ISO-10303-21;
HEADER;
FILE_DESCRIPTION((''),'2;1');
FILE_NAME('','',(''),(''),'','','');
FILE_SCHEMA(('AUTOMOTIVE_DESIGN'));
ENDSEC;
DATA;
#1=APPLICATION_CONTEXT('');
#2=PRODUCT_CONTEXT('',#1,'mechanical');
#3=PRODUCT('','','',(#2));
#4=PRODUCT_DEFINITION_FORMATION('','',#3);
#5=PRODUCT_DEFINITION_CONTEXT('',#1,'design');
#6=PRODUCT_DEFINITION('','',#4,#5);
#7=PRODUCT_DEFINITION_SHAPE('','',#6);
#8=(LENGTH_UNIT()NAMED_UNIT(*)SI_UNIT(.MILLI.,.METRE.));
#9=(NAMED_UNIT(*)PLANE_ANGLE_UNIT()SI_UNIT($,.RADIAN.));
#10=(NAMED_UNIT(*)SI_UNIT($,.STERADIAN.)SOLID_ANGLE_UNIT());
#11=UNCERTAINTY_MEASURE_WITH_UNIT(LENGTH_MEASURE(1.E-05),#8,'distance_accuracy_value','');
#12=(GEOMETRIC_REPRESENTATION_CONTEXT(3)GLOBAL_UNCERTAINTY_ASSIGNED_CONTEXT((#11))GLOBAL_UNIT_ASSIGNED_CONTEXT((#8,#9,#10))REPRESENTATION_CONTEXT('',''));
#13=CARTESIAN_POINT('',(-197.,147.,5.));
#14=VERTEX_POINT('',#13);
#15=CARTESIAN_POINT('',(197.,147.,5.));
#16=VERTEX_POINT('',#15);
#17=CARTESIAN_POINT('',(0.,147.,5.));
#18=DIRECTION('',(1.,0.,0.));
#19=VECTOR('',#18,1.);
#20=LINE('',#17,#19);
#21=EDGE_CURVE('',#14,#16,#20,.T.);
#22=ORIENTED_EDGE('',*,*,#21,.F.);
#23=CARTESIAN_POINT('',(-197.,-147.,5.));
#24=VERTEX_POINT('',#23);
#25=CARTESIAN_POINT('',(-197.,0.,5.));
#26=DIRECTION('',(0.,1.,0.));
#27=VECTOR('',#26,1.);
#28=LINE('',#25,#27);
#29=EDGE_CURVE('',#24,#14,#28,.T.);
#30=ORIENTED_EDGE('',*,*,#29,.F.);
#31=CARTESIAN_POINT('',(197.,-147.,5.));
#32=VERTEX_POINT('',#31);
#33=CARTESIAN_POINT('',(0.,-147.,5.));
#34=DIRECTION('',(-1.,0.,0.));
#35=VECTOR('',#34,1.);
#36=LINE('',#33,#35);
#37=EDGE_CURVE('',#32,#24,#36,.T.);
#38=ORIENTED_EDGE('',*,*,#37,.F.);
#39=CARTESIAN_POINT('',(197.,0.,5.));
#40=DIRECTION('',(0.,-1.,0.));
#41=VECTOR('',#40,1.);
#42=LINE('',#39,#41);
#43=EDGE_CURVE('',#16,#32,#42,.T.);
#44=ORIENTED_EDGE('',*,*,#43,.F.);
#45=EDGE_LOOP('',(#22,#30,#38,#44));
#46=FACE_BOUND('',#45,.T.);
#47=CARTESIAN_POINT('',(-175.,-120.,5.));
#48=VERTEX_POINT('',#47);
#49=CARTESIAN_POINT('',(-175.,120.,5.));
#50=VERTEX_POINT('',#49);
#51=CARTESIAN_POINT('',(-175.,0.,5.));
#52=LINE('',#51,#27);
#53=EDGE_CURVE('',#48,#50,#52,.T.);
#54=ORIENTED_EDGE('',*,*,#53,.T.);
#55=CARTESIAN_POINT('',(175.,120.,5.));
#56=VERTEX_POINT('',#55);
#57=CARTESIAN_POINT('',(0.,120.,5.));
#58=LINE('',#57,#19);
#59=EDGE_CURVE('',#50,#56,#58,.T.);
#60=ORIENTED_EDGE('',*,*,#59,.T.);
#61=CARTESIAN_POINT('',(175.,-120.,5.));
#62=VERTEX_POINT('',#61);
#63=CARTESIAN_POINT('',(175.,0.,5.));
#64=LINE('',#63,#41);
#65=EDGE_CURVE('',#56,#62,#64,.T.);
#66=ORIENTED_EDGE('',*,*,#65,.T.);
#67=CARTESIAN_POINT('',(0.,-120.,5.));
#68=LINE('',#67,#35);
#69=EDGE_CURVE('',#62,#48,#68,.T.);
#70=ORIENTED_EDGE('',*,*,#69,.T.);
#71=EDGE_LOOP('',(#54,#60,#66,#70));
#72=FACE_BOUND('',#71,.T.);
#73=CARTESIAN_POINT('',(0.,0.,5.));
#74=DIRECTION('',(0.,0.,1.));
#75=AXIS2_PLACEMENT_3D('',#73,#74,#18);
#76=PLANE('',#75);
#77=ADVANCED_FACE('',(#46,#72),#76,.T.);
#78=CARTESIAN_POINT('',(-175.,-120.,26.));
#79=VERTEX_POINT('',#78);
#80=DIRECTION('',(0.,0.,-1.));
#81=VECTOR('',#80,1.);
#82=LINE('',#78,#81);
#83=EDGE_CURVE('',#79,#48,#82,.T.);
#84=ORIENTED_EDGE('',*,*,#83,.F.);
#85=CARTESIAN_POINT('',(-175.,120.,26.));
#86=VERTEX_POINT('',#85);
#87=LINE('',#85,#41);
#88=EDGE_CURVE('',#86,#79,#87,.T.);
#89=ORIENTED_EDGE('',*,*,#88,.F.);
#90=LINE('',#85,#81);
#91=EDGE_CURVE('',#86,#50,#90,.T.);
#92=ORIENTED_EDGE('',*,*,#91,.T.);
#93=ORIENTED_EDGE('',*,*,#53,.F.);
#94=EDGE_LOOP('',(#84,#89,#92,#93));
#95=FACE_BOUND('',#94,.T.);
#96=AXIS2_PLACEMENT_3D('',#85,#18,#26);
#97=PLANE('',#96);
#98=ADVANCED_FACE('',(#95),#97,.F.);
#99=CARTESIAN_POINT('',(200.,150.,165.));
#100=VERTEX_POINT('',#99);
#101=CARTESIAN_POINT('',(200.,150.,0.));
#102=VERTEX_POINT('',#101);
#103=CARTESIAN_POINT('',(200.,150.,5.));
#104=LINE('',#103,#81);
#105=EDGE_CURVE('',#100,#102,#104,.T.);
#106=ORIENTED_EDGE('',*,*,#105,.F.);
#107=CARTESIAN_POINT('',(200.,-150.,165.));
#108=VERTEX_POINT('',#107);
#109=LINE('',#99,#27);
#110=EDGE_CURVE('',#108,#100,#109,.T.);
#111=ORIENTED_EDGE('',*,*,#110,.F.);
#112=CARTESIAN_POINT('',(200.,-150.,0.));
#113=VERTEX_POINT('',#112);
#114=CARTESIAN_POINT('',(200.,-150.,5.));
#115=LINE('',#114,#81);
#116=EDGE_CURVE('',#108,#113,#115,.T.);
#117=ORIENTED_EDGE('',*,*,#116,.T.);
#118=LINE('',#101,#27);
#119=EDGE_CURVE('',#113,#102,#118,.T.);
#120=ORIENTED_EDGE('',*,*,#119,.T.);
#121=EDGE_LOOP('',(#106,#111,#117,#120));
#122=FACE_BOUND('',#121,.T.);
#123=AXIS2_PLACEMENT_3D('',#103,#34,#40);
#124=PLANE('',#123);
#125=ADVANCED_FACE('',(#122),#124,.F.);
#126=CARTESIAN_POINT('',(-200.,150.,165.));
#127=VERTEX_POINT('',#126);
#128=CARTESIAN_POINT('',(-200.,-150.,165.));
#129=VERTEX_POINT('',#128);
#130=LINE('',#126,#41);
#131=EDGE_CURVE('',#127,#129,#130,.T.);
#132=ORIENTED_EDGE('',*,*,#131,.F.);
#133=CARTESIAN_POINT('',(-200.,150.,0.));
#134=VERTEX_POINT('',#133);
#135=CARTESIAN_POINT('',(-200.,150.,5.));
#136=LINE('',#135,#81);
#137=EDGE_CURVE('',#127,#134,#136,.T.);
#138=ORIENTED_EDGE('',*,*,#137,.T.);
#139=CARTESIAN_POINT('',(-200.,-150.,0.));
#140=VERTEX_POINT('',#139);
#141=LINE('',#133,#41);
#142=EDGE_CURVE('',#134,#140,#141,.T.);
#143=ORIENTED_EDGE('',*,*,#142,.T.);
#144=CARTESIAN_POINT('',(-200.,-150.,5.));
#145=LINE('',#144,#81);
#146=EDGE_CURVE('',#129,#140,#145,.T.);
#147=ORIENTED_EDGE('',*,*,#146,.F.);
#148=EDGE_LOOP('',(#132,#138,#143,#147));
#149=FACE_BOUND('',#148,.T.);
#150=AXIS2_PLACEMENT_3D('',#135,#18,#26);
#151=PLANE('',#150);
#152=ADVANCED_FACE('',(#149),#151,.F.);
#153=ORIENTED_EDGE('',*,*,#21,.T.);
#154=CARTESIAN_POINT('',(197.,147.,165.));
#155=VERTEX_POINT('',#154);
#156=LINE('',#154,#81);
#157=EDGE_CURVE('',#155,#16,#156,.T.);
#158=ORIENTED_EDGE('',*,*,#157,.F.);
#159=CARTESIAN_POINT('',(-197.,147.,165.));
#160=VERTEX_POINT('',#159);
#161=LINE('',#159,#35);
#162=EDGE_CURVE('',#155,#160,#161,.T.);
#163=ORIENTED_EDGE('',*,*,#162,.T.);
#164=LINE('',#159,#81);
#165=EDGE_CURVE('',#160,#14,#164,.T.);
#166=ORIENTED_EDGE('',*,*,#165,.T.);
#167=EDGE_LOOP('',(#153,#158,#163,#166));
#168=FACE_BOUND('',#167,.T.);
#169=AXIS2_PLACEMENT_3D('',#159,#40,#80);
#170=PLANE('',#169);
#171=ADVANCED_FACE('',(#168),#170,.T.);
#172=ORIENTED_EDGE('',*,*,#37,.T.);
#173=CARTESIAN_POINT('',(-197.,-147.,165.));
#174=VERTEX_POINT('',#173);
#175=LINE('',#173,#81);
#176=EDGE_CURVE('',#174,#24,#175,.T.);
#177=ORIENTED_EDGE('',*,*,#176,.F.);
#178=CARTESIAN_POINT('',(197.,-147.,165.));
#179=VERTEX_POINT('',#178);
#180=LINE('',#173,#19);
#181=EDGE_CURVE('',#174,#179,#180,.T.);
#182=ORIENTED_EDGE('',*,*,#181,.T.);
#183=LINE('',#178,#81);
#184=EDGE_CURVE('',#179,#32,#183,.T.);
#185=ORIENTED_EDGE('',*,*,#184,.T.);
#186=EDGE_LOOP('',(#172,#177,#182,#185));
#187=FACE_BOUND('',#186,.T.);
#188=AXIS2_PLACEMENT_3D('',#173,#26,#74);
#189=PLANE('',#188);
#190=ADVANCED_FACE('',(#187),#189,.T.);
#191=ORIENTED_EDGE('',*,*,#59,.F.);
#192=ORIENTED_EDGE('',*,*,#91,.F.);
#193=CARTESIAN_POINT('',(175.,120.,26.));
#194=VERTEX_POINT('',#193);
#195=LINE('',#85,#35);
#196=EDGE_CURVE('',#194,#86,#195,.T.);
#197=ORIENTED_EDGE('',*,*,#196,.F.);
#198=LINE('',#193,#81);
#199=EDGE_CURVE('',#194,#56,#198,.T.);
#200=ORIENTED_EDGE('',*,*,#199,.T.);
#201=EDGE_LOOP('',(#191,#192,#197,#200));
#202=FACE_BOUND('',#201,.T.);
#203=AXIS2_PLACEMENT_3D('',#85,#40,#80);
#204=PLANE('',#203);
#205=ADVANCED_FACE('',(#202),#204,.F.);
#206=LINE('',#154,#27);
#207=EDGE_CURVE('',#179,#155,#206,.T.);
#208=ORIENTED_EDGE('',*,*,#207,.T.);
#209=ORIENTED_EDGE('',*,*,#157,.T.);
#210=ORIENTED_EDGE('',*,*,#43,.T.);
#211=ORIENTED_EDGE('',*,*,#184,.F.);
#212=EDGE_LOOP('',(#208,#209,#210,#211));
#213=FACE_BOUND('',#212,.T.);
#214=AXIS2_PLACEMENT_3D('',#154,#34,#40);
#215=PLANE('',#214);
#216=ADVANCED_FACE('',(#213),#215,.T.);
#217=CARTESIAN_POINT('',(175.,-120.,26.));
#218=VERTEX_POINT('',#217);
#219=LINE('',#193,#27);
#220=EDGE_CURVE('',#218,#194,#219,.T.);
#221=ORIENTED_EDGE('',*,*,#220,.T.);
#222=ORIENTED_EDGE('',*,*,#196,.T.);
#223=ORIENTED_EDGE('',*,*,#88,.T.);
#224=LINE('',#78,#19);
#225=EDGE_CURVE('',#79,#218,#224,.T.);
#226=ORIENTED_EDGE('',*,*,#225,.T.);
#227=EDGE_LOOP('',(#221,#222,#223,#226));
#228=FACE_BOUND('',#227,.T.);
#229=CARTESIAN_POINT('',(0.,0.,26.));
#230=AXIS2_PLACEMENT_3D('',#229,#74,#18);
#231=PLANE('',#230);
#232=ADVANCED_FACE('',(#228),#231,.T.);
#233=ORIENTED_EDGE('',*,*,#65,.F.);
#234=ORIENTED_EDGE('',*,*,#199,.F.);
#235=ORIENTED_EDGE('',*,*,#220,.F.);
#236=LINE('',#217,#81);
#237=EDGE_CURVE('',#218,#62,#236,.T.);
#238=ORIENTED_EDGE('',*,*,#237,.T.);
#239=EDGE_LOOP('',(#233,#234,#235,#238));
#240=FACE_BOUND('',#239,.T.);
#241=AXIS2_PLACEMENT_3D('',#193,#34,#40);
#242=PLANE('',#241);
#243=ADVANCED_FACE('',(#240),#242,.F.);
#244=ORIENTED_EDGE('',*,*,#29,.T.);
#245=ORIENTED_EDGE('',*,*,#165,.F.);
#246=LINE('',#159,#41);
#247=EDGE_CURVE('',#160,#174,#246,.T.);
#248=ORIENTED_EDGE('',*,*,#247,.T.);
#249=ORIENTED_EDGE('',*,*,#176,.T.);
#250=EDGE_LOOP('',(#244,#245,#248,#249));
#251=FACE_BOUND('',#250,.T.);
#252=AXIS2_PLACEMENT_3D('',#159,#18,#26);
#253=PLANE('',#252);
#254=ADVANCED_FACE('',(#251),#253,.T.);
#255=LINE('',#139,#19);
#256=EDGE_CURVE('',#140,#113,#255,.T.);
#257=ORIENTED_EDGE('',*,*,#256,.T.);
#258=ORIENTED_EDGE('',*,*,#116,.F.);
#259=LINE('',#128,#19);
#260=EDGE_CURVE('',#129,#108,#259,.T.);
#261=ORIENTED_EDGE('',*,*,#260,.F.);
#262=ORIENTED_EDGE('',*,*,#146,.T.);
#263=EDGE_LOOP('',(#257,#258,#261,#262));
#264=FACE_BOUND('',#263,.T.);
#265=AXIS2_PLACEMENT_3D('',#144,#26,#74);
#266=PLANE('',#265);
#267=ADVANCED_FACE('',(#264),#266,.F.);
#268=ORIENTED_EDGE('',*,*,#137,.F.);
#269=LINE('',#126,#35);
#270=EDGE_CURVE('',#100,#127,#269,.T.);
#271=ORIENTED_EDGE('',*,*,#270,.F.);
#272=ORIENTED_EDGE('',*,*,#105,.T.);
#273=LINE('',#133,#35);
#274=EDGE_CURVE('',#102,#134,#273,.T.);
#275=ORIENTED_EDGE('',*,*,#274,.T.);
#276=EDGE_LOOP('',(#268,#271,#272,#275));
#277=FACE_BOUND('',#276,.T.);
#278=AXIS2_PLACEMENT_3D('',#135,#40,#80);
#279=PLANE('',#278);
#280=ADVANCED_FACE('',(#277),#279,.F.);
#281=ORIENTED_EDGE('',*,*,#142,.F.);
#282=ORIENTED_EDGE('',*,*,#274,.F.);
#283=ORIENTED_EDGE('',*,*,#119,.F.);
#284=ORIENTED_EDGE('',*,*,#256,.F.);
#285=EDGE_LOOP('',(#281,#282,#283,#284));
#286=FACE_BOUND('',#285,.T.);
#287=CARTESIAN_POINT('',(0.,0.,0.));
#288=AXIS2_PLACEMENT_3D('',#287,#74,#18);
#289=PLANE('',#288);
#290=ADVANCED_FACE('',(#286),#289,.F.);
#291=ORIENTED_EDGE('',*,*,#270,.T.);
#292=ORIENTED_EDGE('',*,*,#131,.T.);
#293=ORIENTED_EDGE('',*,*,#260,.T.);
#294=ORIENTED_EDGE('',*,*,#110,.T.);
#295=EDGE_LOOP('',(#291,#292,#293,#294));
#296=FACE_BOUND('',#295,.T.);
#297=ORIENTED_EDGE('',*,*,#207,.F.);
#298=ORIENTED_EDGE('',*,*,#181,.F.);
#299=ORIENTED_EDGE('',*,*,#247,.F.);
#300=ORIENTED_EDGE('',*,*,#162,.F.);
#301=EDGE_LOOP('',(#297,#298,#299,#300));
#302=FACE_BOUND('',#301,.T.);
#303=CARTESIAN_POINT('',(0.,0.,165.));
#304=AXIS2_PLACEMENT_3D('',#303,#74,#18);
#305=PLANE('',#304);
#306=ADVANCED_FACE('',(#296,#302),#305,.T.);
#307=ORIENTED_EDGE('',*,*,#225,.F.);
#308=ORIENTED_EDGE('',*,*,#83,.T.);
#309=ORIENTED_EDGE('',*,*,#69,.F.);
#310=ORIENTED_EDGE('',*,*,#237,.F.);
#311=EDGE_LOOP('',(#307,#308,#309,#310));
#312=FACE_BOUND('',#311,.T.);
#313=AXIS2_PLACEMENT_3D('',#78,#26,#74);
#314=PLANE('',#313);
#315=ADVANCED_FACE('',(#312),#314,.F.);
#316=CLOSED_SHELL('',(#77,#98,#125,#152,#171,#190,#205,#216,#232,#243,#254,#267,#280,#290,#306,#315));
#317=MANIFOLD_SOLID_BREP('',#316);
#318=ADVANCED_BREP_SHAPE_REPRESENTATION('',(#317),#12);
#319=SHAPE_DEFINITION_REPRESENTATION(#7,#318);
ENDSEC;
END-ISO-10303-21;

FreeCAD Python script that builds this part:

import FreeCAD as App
import Part
import Sketcher


def add_polygon(sketch, points):
    """Adds a closed chain of lines whose ends are joined by coincident constraints."""
    first, n = sketch.GeometryCount, len(points)
    for a, b in zip(points, points[1:] + points[:1]):
        sketch.addGeometry(Part.LineSegment(App.Vector(*a, 0), App.Vector(*b, 0)), False)
    for i in range(n):
        sketch.addConstraint(Sketcher.Constraint("Coincident", first + i, 2, first + (i + 1) % n, 1))

doc = App.newDocument("Part")
body = doc.addObject("PartDesign::Body", "Body")

# Sketch on XY plane
sketch1 = body.newObject("Sketcher::SketchObject", "Sketch")
sketch1.AttachmentSupport = (doc.getObject("XY_Plane"), [""])
sketch1.MapMode = "FlatFace"
add_polygon(sketch1, [(-200, 150), (-200, -150), (200, -150), (200, 150)])  # lines 0-3
sketch1.addConstraint(Sketcher.Constraint("Vertical", 0))
sketch1.addConstraint(Sketcher.Constraint("Horizontal", 1))
sketch1.addConstraint(Sketcher.Constraint("Vertical", 2))
sketch1.addConstraint(Sketcher.Constraint("Horizontal", 3))
sketch1.addConstraint(Sketcher.Constraint("Symmetric", 0, 2, 2, 2, -1, 1))
sketch1.addConstraint(Sketcher.Constraint("DistanceX", 1, 1, 1, 2, 400.0))
sketch1.addConstraint(Sketcher.Constraint("DistanceY", 0, 2, 0, 1, 300.0))
pad1 = body.newObject("PartDesign::Pad", "Pad")
pad1.Profile = sketch1
pad1.Length = 5

# Sketch on XY plane
sketch2 = body.newObject("Sketcher::SketchObject", "Sketch001")
sketch2.AttachmentSupport = (doc.getObject("XY_Plane"), [""])
sketch2.MapMode = "FlatFace"
add_polygon(sketch2, [(-200, 150), (-200, -150), (200, -150), (200, 150)])  # lines 0-3
add_polygon(sketch2, [(197, -147), (-197, -147), (-197, 147), (197, 147)])  # lines 4-7
sketch2.addConstraint(Sketcher.Constraint("Vertical", 0))
sketch2.addConstraint(Sketcher.Constraint("Horizontal", 1))
sketch2.addConstraint(Sketcher.Constraint("Vertical", 2))
sketch2.addConstraint(Sketcher.Constraint("Horizontal", 3))
sketch2.addConstraint(Sketcher.Constraint("Horizontal", 4))
sketch2.addConstraint(Sketcher.Constraint("Vertical", 5))
sketch2.addConstraint(Sketcher.Constraint("Horizontal", 6))
sketch2.addConstraint(Sketcher.Constraint("Vertical", 7))
sketch2.addConstraint(Sketcher.Constraint("Symmetric", 0, 2, 2, 2, -1, 1))
sketch2.addConstraint(Sketcher.Constraint("Symmetric", 4, 2, 6, 2, -1, 1))
sketch2.addConstraint(Sketcher.Constraint("DistanceX", 1, 1, 1, 2, 400.0))
sketch2.addConstraint(Sketcher.Constraint("DistanceX", 4, 2, 4, 1, 394.0))
sketch2.addConstraint(Sketcher.Constraint("DistanceY", 0, 2, 0, 1, 300.0))
sketch2.addConstraint(Sketcher.Constraint("DistanceY", 5, 1, 5, 2, 294.0))
pad2 = body.newObject("PartDesign::Pad", "Pad001")
pad2.Profile = sketch2
pad2.Length = 165

# Sketch on XY plane
sketch3 = body.newObject("Sketcher::SketchObject", "Sketch002")
sketch3.AttachmentSupport = (doc.getObject("XY_Plane"), [""])
sketch3.MapMode = "FlatFace"
add_polygon(sketch3, [(-175, 120), (-175, -120), (175, -120), (175, 120)])  # lines 0-3
sketch3.addConstraint(Sketcher.Constraint("Vertical", 0))
sketch3.addConstraint(Sketcher.Constraint("Horizontal", 1))
sketch3.addConstraint(Sketcher.Constraint("Vertical", 2))
sketch3.addConstraint(Sketcher.Constraint("Horizontal", 3))
sketch3.addConstraint(Sketcher.Constraint("Symmetric", 0, 2, 2, 2, -1, 1))
sketch3.addConstraint(Sketcher.Constraint("DistanceX", 1, 1, 1, 2, 350.0))
sketch3.addConstraint(Sketcher.Constraint("DistanceY", 0, 2, 0, 1, 240.0))
pad3 = body.newObject("PartDesign::Pad", "Pad002")
pad3.Profile = sketch3
pad3.Length = 26

doc.recompute()
